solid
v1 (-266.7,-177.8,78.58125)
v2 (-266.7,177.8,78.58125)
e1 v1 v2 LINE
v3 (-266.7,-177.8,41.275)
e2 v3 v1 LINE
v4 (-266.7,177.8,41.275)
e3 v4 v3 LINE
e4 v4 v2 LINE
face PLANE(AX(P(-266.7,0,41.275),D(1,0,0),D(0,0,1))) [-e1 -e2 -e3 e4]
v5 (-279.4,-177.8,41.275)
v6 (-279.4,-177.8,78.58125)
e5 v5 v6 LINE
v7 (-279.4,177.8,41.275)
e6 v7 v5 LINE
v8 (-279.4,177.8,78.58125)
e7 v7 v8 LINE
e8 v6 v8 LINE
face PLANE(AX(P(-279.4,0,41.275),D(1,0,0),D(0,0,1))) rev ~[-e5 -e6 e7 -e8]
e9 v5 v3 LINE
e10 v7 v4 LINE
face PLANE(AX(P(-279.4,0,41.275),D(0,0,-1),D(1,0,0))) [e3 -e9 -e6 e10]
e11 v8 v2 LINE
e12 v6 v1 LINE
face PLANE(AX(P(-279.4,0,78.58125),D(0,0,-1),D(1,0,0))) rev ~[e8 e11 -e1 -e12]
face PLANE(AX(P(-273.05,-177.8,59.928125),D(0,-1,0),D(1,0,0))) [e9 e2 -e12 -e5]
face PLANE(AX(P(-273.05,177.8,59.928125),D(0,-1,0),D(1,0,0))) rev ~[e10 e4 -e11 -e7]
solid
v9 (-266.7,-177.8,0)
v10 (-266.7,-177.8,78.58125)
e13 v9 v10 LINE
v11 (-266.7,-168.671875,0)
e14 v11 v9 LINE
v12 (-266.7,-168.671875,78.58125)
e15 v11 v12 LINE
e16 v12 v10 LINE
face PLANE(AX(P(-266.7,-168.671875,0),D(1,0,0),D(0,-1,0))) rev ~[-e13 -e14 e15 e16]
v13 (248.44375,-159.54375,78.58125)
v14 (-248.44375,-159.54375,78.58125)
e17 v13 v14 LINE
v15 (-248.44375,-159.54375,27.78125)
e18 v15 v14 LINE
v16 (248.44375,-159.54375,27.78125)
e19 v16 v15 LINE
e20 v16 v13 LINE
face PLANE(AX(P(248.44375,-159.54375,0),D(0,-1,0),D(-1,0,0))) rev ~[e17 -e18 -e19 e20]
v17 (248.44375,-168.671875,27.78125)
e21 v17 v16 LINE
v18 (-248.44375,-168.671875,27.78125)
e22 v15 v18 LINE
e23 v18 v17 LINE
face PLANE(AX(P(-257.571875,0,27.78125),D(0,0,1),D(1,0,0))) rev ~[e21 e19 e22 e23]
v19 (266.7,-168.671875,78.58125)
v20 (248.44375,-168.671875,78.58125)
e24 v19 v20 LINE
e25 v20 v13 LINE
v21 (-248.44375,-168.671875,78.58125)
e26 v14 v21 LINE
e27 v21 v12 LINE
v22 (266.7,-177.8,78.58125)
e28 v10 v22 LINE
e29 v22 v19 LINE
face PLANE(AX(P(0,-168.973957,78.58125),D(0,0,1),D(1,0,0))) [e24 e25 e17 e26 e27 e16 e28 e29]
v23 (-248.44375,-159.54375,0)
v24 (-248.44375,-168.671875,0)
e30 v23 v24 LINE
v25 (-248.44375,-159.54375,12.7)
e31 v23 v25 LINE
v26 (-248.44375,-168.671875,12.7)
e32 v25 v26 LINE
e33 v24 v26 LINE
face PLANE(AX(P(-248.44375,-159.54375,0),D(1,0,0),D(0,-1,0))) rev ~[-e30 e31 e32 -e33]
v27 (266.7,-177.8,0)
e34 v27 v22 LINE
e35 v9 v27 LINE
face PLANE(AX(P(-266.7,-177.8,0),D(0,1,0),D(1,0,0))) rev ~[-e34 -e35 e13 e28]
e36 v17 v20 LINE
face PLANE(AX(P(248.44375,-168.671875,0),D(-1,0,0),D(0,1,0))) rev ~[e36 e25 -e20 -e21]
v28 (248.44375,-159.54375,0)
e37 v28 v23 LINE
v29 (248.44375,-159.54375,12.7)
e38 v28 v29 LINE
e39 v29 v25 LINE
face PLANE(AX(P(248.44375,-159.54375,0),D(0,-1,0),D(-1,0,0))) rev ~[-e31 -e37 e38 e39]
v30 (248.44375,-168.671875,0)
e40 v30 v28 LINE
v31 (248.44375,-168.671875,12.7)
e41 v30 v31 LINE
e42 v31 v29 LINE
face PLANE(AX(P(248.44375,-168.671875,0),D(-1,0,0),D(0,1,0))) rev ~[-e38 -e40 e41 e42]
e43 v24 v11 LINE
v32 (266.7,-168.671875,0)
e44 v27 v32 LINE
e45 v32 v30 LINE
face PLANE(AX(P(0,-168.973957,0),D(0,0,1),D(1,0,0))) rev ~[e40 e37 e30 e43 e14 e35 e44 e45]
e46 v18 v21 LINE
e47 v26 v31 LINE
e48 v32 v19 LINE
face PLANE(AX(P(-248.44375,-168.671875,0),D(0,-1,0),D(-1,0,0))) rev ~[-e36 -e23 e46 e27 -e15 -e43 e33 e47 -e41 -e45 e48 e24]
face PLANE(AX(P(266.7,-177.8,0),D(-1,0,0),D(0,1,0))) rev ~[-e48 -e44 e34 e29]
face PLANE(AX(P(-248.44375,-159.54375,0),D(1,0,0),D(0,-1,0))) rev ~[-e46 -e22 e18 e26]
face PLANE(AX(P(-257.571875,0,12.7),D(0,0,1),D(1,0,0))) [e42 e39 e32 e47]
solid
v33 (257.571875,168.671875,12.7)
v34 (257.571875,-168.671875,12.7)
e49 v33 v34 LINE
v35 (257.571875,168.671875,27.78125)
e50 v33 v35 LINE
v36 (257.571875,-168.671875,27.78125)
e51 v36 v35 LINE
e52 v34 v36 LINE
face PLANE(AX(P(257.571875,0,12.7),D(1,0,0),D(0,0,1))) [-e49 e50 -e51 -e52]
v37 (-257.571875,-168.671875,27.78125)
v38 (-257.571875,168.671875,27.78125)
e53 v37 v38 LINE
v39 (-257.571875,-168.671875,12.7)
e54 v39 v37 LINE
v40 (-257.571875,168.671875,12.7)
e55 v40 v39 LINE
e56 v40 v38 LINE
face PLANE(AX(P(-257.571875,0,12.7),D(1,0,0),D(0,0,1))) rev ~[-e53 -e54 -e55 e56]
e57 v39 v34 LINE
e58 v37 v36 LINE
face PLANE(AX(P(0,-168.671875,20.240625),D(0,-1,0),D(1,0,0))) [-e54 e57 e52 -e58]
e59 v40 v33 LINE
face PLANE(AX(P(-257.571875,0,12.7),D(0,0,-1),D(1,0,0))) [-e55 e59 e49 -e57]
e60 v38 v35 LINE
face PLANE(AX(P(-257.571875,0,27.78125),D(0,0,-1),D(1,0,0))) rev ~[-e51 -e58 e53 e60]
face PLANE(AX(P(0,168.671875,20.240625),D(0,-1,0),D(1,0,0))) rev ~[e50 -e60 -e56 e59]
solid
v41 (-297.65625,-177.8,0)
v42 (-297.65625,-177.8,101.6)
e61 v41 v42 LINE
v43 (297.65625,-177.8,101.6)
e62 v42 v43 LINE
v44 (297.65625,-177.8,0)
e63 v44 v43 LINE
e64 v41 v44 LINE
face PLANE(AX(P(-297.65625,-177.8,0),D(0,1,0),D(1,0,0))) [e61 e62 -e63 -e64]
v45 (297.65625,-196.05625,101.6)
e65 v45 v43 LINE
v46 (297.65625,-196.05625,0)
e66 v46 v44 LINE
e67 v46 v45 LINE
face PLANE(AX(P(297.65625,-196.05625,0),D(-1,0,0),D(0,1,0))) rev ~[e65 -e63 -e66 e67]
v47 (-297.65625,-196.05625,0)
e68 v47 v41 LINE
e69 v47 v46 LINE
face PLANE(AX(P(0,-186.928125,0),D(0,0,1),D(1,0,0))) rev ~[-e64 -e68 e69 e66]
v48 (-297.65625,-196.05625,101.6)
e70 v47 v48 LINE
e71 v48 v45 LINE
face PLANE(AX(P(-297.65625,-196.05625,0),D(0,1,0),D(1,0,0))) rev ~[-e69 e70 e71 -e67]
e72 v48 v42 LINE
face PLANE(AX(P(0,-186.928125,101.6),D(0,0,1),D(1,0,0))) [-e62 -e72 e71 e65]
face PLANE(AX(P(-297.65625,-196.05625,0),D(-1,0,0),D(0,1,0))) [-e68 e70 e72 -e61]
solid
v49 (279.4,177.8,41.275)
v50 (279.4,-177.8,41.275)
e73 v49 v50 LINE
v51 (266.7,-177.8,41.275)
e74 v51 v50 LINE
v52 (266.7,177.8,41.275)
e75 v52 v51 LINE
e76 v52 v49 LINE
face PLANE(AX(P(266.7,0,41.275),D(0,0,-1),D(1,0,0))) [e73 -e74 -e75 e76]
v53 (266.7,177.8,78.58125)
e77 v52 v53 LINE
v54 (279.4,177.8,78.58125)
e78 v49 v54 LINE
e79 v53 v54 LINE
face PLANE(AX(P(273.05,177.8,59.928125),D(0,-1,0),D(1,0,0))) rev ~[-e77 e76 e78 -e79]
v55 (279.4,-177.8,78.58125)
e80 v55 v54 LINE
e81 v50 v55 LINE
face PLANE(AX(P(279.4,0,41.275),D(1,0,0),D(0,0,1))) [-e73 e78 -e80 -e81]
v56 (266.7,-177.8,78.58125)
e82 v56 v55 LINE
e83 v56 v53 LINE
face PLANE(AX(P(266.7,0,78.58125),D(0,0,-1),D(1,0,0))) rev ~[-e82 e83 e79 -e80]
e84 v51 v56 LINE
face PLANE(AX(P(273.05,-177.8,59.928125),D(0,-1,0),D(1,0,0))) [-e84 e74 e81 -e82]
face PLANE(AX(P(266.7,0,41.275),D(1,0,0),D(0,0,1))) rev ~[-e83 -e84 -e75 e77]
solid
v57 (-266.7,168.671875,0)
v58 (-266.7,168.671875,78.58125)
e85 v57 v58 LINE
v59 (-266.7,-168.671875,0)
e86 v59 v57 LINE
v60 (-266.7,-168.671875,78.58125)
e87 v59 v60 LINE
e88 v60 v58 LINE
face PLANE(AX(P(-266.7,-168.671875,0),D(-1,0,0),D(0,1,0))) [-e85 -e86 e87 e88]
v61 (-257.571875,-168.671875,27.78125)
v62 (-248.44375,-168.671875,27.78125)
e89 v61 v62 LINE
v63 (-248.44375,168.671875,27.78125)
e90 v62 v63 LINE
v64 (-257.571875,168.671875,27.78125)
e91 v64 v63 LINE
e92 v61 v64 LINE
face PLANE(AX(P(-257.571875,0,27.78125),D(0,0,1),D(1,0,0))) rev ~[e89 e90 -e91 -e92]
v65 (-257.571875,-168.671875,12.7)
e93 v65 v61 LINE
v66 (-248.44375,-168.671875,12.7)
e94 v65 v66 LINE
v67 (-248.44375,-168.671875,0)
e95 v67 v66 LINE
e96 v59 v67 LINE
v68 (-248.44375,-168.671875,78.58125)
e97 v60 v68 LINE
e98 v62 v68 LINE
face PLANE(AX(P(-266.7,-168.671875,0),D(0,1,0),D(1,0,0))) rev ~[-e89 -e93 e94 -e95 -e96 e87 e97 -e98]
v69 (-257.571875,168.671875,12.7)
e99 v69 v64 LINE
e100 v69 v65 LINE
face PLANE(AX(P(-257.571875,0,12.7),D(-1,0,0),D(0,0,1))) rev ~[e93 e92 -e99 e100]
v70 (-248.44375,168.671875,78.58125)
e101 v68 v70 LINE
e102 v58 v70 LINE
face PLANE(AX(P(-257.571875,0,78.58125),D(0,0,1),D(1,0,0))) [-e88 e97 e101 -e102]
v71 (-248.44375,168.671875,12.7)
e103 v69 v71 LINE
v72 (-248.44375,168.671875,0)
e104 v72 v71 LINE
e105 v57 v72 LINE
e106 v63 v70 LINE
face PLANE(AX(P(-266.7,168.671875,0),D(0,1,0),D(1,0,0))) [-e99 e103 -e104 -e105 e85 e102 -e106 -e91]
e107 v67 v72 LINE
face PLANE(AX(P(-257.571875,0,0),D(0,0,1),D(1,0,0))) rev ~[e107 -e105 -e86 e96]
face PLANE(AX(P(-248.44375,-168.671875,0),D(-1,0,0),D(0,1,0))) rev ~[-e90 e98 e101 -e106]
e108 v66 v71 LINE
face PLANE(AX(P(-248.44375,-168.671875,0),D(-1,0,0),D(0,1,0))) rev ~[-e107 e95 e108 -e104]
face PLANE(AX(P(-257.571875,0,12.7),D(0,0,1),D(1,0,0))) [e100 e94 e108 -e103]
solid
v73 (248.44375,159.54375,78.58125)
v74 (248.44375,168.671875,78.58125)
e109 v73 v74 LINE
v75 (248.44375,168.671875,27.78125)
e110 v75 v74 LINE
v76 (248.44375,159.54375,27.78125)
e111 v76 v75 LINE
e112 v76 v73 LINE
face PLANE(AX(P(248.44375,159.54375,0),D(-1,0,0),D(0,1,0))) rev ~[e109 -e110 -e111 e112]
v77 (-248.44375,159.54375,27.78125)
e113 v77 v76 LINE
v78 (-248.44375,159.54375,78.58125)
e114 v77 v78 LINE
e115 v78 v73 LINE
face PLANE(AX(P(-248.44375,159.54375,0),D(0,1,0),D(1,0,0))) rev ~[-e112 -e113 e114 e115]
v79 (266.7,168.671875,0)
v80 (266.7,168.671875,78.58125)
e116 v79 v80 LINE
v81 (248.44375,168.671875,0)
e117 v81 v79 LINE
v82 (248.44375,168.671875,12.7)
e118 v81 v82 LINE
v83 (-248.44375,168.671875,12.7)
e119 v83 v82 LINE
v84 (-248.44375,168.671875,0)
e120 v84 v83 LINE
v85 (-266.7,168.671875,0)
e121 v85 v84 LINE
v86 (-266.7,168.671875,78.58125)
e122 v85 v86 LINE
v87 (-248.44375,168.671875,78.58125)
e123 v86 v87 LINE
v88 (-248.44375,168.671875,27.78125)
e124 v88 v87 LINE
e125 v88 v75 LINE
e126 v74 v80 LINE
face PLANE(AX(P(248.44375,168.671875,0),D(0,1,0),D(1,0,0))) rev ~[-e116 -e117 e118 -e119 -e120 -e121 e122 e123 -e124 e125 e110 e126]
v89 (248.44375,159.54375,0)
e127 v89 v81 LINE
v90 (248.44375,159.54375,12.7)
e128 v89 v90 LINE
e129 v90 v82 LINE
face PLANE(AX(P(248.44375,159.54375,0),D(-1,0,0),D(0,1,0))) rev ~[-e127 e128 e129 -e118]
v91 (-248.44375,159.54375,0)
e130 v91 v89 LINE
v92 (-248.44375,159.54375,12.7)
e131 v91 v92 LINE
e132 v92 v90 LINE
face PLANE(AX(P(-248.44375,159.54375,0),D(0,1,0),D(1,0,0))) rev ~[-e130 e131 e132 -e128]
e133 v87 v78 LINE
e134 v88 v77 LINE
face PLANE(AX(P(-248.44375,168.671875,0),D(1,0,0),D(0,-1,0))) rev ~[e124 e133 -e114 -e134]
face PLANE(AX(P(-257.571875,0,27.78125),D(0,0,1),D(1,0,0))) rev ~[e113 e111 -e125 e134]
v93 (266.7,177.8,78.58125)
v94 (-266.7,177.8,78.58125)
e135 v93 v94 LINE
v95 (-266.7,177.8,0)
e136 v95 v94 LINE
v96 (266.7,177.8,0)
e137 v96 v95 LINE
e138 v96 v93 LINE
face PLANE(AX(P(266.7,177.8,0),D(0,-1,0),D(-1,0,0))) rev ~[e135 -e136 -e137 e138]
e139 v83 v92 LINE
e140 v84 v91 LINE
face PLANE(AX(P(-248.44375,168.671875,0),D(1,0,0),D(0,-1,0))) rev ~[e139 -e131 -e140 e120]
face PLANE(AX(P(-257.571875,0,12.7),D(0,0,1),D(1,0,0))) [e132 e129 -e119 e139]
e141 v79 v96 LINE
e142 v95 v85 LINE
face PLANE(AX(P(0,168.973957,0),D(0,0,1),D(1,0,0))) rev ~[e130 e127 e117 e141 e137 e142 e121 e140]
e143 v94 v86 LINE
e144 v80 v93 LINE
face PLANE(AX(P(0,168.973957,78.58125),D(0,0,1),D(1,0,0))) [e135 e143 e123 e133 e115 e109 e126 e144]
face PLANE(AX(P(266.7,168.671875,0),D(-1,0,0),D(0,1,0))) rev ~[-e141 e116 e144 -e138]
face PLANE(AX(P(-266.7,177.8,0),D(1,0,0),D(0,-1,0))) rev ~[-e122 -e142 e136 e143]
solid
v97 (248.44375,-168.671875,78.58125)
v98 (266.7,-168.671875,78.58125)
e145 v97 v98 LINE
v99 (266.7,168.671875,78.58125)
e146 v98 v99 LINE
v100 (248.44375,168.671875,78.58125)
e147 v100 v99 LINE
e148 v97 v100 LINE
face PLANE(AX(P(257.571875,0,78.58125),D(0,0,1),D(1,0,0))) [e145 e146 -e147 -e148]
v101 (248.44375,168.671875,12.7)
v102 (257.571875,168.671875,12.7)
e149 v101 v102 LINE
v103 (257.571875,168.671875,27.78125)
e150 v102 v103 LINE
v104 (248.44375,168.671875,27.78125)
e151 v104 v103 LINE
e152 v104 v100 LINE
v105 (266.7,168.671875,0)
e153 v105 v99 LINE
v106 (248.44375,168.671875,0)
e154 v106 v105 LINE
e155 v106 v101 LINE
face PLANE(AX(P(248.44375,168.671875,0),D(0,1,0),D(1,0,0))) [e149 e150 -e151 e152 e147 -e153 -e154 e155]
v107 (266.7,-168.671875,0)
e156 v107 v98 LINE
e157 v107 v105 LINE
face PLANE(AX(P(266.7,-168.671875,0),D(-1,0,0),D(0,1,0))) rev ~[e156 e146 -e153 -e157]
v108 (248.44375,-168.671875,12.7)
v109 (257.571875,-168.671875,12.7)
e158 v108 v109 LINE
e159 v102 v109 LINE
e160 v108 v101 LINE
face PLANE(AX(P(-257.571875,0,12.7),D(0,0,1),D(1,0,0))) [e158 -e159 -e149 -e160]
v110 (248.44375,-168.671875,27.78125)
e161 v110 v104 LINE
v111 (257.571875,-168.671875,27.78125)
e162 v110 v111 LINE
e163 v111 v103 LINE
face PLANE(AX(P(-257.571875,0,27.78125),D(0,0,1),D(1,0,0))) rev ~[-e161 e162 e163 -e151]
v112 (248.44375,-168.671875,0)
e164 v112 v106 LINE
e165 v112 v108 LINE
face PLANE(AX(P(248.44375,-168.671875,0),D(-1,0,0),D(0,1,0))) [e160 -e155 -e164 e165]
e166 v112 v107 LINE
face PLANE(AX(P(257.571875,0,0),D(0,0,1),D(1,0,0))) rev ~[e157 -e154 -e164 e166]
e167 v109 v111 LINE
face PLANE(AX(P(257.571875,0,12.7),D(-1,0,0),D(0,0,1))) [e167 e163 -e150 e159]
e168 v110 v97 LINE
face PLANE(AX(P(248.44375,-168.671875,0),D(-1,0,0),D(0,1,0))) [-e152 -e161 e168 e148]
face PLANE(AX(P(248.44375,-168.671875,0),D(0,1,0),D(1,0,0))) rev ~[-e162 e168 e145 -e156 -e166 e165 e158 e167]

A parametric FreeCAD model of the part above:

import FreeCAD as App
import Part
import Sketcher
Q = App.Units.Quantity


def add_polygon(sketch, points):
    """Adds a closed chain of lines whose ends are joined by coincident constraints."""
    first, n = sketch.GeometryCount, len(points)
    for a, b in zip(points, points[1:] + points[:1]):
        sketch.addGeometry(Part.LineSegment(App.Vector(*a, 0), App.Vector(*b, 0)), False)
    for i in range(n):
        sketch.addConstraint(Sketcher.Constraint("Coincident", first + i, 2, first + (i + 1) % n, 1))

doc = App.newDocument("Part")
body = doc.addObject("PartDesign::Body", "Body")

# Sketch on XY plane
sketch1 = body.newObject("Sketcher::SketchObject", "Sketch")
sketch1.AttachmentSupport = (doc.getObject("XY_Plane"), [""])
sketch1.MapMode = "FlatFace"
add_polygon(sketch1, [(266.7, 177.8), (-266.7, 177.8), (-266.7, 168.671875), (-248.44375, 168.671875), (-248.44375, 159.54375), (248.44375, 159.54375), (248.44375, 168.671875), (266.7, 168.671875)])  # lines 0-7
sketch1.addConstraint([
    Sketcher.Constraint("Horizontal", 0),
    Sketcher.Constraint("Vertical", 1),
    Sketcher.Constraint("Horizontal", 2),
    Sketcher.Constraint("Vertical", 3),
    Sketcher.Constraint("Horizontal", 4),
    Sketcher.Constraint("Vertical", 5),
    Sketcher.Constraint("Horizontal", 6),
    Sketcher.Constraint("Vertical", 7),
    Sketcher.Constraint("Symmetric", 2, 2, 5, 2, -2),
    Sketcher.Constraint("Equal", 2, 6),
    Sketcher.Constraint("Equal", 1, 3),
    Sketcher.Constraint("DistanceX", 0, 2, 0, 1, Q("21 in")),
    Sketcher.Constraint("DistanceY", -1, 1, 0, 2, Q("7 in")),
    Sketcher.Constraint("DistanceX", 2, 1, 2, 2, Q("0.71875 in")),
    Sketcher.Constraint("DistanceY", 1, 2, 1, 1, Q("0.359375 in")),
])
pad1 = body.newObject("PartDesign::Pad", "Pad")
pad1.Profile = sketch1
pad1.Length = Q("3.09375 in")
body2 = doc.addObject("PartDesign::Body", "Body001")

# Sketch on XY plane
sketch2 = body2.newObject("Sketcher::SketchObject", "Sketch001")
sketch2.AttachmentSupport = (doc.getObject("XY_Plane001"), [""])
sketch2.MapMode = "FlatFace"
add_polygon(sketch2, [(-266.7, -177.8), (266.7, -177.8), (266.7, -168.671875), (248.44375, -168.671875), (248.44375, -159.54375), (-248.44375, -159.54375), (-248.44375, -168.671875), (-266.7, -168.671875)])  # lines 0-7
sketch2.addConstraint([
    Sketcher.Constraint("Horizontal", 0),
    Sketcher.Constraint("Vertical", 1),
    Sketcher.Constraint("Horizontal", 2),
    Sketcher.Constraint("Vertical", 3),
    Sketcher.Constraint("Horizontal", 4),
    Sketcher.Constraint("Vertical", 5),
    Sketcher.Constraint("Horizontal", 6),
    Sketcher.Constraint("Vertical", 7),
    Sketcher.Constraint("Symmetric", 2, 2, 5, 2, -2),
    Sketcher.Constraint("Equal", 2, 6),
    Sketcher.Constraint("Equal", 1, 3),
    Sketcher.Constraint("DistanceX", 0, 1, 0, 2, Q("21 in")),
    Sketcher.Constraint("DistanceY", 0, 2, -1, 1, Q("7 in")),
    Sketcher.Constraint("DistanceX", 2, 2, 2, 1, Q("0.71875 in")),
    Sketcher.Constraint("DistanceY", 1, 1, 1, 2, Q("0.359375 in")),
])
pad2 = body2.newObject("PartDesign::Pad", "Pad001")
pad2.Profile = sketch2
pad2.Length = Q("3.09375 in")
body3 = doc.addObject("PartDesign::Body", "Body002")

# Sketch on XY plane
sketch3 = body3.newObject("Sketcher::SketchObject", "Sketch002")
sketch3.AttachmentSupport = (doc.getObject("XY_Plane002"), [""])
sketch3.MapMode = "FlatFace"
add_polygon(sketch3, [(-266.7, 168.671875), (-266.7, -168.671875), (-248.44375, -168.671875), (-248.44375, 168.671875)])  # lines 0-3
sketch3.addConstraint([
    Sketcher.Constraint("Vertical", 0),
    Sketcher.Constraint("Horizontal", 1),
    Sketcher.Constraint("Vertical", 2),
    Sketcher.Constraint("Horizontal", 3),
    Sketcher.Constraint("DistanceX", 0, 2, -1, 1, Q("10.5 in")),
    Sketcher.Constraint("DistanceX", 1, 1, 1, 2, Q("0.71875 in")),
    Sketcher.Constraint("DistanceY", 0, 2, 0, 1, Q("13.28125 in")),
    Sketcher.Constraint("DistanceY", 0, 2, -1, 1, Q("6.640625 in")),
])
pad3 = body3.newObject("PartDesign::Pad", "Pad002")
pad3.Profile = sketch3
pad3.Length = Q("3.09375 in")
body4 = doc.addObject("PartDesign::Body", "Body003")

# Sketch on XY plane
sketch4 = body4.newObject("Sketcher::SketchObject", "Sketch003")
sketch4.AttachmentSupport = (doc.getObject("XY_Plane003"), [""])
sketch4.MapMode = "FlatFace"
add_polygon(sketch4, [(248.44375, 168.671875), (248.44375, -168.671875), (266.7, -168.671875), (266.7, 168.671875)])  # lines 0-3
sketch4.addConstraint([
    Sketcher.Constraint("Vertical", 0),
    Sketcher.Constraint("Horizontal", 1),
    Sketcher.Constraint("Vertical", 2),
    Sketcher.Constraint("Horizontal", 3),
    Sketcher.Constraint("DistanceX", -1, 1, 1, 2, Q("10.5 in")),
    Sketcher.Constraint("DistanceX", 1, 1, 1, 2, Q("0.71875 in")),
    Sketcher.Constraint("DistanceY", 0, 2, 0, 1, Q("13.28125 in")),
    Sketcher.Constraint("DistanceY", 0, 2, -1, 1, Q("6.640625 in")),
])
pad4 = body4.newObject("PartDesign::Pad", "Pad003")
pad4.Profile = sketch4
pad4.Length = Q("3.09375 in")
body5 = doc.addObject("PartDesign::Body", "Body004")

# Sketch on XY plane
sketch5 = body5.newObject("Sketcher::SketchObject", "Sketch004")
sketch5.AttachmentSupport = (doc.getObject("XY_Plane004"), [""])
sketch5.MapMode = "FlatFace"
add_polygon(sketch5, [(-297.65625, -177.8), (-297.65625, -196.05625), (297.65625, -196.05625), (297.65625, -177.8)])  # lines 0-3
sketch5.addConstraint([
    Sketcher.Constraint("Vertical", 0),
    Sketcher.Constraint("Horizontal", 1),
    Sketcher.Constraint("Vertical", 2),
    Sketcher.Constraint("Horizontal", 3),
    Sketcher.Constraint("DistanceY", 2, 2, -1, 1, Q("7 in")),
    Sketcher.Constraint("DistanceX", 1, 1, 1, 2, Q("23.4375 in")),
    Sketcher.Constraint("DistanceY", 0, 2, 0, 1, Q("0.71875 in")),
    Sketcher.Constraint("DistanceX", 0, 2, -1, 1, Q("11.71875 in")),
])
pad5 = body5.newObject("PartDesign::Pad", "Pad004")
pad5.Profile = sketch5
pad5.Length = Q("4 in")
body6 = doc.addObject("PartDesign::Body", "Body005")

# Sketch on XZ plane
sketch6 = body6.newObject("Sketcher::SketchObject", "Sketch005")
sketch6.AttachmentSupport = (doc.getObject("XZ_Plane005"), [""])
sketch6.MapMode = "FlatFace"
add_polygon(sketch6, [(-257.571875, 27.78125), (-257.571875, 12.7), (257.571875, 12.7), (257.571875, 27.78125)])  # lines 0-3
sketch6.addConstraint([
    Sketcher.Constraint("Vertical", 0),
    Sketcher.Constraint("Horizontal", 1),
    Sketcher.Constraint("Vertical", 2),
    Sketcher.Constraint("Horizontal", 3),
    Sketcher.Constraint("DistanceY", -1, 1, 0, 2, Q("0.5 in")),
    Sketcher.Constraint("DistanceX", 1, 1, 1, 2, Q("20.28125 in")),
    Sketcher.Constraint("DistanceY", 0, 2, 0, 1, Q("0.59375 in")),
    Sketcher.Constraint("DistanceX", 0, 2, -1, 1, Q("10.140625 in")),
])
pad6 = body6.newObject("PartDesign::Pad", "Pad005")
pad6.Profile = sketch6
pad6.Type = "TwoLengths"
pad6.Length = Q("6.640625 in")
pad6.Length2 = Q("6.640625 in")
pad6.Reversed = True
doc.recompute()

body7 = doc.addObject("PartDesign::Body", "Body006")
body7.BaseFeature = body6
boolean = body.newObject("PartDesign::Boolean", "Boolean")
boolean.Type = "Cut"
boolean.addObjects([body7])
doc.recompute()

body8 = doc.addObject("PartDesign::Body", "Body007")
body8.BaseFeature = body6
boolean2 = body2.newObject("PartDesign::Boolean", "Boolean001")
boolean2.Type = "Cut"
boolean2.addObjects([body8])
doc.recompute()

body9 = doc.addObject("PartDesign::Body", "Body008")
body9.BaseFeature = body6
boolean3 = body3.newObject("PartDesign::Boolean", "Boolean002")
boolean3.Type = "Cut"
boolean3.addObjects([body9])
doc.recompute()

boolean4 = body4.newObject("PartDesign::Boolean", "Boolean003")
boolean4.Type = "Cut"
boolean4.addObjects([body6])
body10 = doc.addObject("PartDesign::Body", "Body009")

# Sketch on XZ plane
sketch7 = body10.newObject("Sketcher::SketchObject", "Sketch006")
sketch7.AttachmentSupport = (doc.getObject("XZ_Plane009"), [""])
sketch7.MapMode = "FlatFace"
add_polygon(sketch7, [(-257.571875, 27.78125), (-257.571875, 12.7), (257.571875, 12.7), (257.571875, 27.78125)])  # lines 0-3
sketch7.addConstraint([
    Sketcher.Constraint("Vertical", 0),
    Sketcher.Constraint("Horizontal", 1),
    Sketcher.Constraint("Vertical", 2),
    Sketcher.Constraint("Horizontal", 3),
    Sketcher.Constraint("DistanceY", -1, 1, 0, 2, Q("0.5 in")),
    Sketcher.Constraint("DistanceX", 1, 1, 1, 2, Q("20.28125 in")),
    Sketcher.Constraint("DistanceY", 0, 2, 0, 1, Q("0.59375 in")),
    Sketcher.Constraint("DistanceX", 0, 2, -1, 1, Q("10.140625 in")),
])
pad7 = body10.newObject("PartDesign::Pad", "Pad006")
pad7.Profile = sketch7
pad7.Type = "TwoLengths"
pad7.Length = Q("6.640625 in")
pad7.Length2 = Q("6.640625 in")
body11 = doc.addObject("PartDesign::Body", "Body010")

# Sketch on XZ plane
sketch8 = body11.newObject("Sketcher::SketchObject", "Sketch007")
sketch8.AttachmentSupport = (doc.getObject("XZ_Plane010"), [""])
sketch8.MapMode = "FlatFace"
add_polygon(sketch8, [(-279.4, 78.58125), (-279.4, 41.275), (-266.7, 41.275), (-266.7, 78.58125)])  # lines 0-3
sketch8.addConstraint([
    Sketcher.Constraint("Vertical", 0),
    Sketcher.Constraint("Horizontal", 1),
    Sketcher.Constraint("Vertical", 2),
    Sketcher.Constraint("Horizontal", 3),
    Sketcher.Constraint("DistanceX", 1, 1, 1, 2, Q("0.5 in")),
    Sketcher.Constraint("DistanceX", 0, 2, -1, 1, Q("11 in")),
    Sketcher.Constraint("DistanceY", 0, 2, 0, 1, Q("1.46875 in")),
    Sketcher.Constraint("DistanceY", -1, 1, 0, 2, Q("1.625 in")),
])
pad8 = body11.newObject("PartDesign::Pad", "Pad007")
pad8.Profile = sketch8
pad8.Type = "TwoLengths"
pad8.Length = Q("7 in")
pad8.Length2 = Q("7 in")
body12 = doc.addObject("PartDesign::Body", "Body011")

# Sketch on XZ plane
sketch9 = body12.newObject("Sketcher::SketchObject", "Sketch008")
sketch9.AttachmentSupport = (doc.getObject("XZ_Plane011"), [""])
sketch9.MapMode = "FlatFace"
add_polygon(sketch9, [(266.7, 78.58125), (266.7, 41.275), (279.4, 41.275), (279.4, 78.58125)])  # lines 0-3
sketch9.addConstraint([
    Sketcher.Constraint("Vertical", 0),
    Sketcher.Constraint("Horizontal", 1),
    Sketcher.Constraint("Vertical", 2),
    Sketcher.Constraint("Horizontal", 3),
    Sketcher.Constraint("DistanceX", 1, 1, 1, 2, Q("0.5 in")),
    Sketcher.Constraint("DistanceX", -1, 1, 1, 2, Q("11 in")),
    Sketcher.Constraint("DistanceY", 0, 2, 0, 1, Q("1.46875 in")),
    Sketcher.Constraint("DistanceY", -1, 1, 0, 2, Q("1.625 in")),
])
pad9 = body12.newObject("PartDesign::Pad", "Pad008")
pad9.Profile = sketch9
pad9.Type = "TwoLengths"
pad9.Length = Q("7 in")
pad9.Length2 = Q("7 in")

doc.recompute()
